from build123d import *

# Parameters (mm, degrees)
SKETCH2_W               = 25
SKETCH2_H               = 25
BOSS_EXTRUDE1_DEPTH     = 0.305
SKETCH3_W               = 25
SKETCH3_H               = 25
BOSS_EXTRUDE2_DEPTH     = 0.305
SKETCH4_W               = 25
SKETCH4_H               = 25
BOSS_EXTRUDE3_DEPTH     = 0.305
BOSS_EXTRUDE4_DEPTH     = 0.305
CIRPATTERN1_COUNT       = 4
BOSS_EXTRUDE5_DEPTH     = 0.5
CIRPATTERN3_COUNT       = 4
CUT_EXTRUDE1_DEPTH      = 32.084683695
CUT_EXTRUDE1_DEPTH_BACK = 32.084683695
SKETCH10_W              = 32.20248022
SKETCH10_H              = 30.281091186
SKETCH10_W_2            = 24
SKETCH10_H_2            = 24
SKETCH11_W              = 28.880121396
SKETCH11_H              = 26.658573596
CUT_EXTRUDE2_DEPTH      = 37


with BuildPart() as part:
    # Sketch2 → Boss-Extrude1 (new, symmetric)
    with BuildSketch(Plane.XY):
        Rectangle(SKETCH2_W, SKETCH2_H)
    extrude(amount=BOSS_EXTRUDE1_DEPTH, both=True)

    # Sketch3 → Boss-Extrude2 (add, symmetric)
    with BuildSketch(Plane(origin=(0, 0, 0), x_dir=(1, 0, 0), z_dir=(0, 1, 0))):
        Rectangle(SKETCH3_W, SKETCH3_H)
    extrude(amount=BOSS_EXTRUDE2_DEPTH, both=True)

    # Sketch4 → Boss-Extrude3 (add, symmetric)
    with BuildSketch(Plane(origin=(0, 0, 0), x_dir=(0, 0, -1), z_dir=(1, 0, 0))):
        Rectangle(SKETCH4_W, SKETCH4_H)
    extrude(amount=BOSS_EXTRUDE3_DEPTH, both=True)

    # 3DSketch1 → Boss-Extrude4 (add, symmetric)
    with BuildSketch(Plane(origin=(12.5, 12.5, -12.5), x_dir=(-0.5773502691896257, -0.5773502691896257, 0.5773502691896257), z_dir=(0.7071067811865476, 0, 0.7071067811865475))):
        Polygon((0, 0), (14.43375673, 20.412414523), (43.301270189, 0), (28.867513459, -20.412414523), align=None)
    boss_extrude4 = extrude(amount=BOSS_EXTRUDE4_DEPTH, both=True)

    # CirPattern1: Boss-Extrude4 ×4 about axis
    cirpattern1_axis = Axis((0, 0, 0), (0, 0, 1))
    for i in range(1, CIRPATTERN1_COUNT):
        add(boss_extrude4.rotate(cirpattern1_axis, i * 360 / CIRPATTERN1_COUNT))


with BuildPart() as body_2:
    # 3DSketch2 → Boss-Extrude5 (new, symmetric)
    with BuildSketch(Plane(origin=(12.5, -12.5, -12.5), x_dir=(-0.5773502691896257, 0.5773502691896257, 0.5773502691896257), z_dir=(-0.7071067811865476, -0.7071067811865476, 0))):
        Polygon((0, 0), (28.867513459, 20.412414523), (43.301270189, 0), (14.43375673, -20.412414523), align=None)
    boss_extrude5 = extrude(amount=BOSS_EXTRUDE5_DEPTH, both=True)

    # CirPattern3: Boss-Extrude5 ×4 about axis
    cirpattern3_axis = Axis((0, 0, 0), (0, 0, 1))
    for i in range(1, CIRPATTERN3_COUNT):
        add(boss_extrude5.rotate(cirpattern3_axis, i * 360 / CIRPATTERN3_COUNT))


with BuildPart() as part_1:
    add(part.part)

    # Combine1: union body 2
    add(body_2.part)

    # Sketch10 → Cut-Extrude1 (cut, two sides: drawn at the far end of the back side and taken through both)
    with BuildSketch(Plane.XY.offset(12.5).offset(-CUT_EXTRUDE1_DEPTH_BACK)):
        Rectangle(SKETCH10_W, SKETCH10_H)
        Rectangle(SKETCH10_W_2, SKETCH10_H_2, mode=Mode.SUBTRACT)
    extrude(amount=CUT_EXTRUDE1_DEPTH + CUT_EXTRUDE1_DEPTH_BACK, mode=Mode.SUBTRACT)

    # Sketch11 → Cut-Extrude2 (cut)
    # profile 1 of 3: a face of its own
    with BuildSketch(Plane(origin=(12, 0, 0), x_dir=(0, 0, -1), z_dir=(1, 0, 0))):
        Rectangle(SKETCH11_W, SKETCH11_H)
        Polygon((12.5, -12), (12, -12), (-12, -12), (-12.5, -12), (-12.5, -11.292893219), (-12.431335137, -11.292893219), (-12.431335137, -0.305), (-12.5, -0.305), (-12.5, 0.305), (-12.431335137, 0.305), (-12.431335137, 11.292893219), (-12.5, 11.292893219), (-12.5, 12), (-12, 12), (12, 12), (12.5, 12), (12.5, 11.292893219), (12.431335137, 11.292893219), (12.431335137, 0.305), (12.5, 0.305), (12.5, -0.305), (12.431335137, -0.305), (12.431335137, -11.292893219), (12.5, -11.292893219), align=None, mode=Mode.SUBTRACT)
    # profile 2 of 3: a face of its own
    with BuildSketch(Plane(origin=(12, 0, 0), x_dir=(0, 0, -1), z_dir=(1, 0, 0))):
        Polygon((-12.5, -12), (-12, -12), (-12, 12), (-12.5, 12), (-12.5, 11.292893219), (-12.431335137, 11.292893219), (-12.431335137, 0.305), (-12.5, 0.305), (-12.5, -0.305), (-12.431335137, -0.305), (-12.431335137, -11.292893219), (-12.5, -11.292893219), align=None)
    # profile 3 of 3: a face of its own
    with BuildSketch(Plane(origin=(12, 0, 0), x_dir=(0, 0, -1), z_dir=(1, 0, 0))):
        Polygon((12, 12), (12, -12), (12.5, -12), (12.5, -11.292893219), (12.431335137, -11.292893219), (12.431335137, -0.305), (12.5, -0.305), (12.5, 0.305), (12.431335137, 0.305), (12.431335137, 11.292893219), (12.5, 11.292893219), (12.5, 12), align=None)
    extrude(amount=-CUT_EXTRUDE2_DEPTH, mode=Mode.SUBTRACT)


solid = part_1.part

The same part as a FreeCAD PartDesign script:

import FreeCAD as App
import Part
import Sketcher
Q = App.Units.Quantity


def add_polygon(sketch, points):
    """Adds a closed chain of lines whose ends are joined by coincident constraints."""
    first, n = sketch.GeometryCount, len(points)
    for a, b in zip(points, points[1:] + points[:1]):
        sketch.addGeometry(Part.LineSegment(App.Vector(*a, 0), App.Vector(*b, 0)), False)
    for i in range(n):
        sketch.addConstraint(Sketcher.Constraint("Coincident", first + i, 2, first + (i + 1) % n, 1))

doc = App.newDocument("Part")
body = doc.addObject("PartDesign::Body", "Body")

# Sketch on XY plane
sketch1 = body.newObject("Sketcher::SketchObject", "Sketch")
sketch1.AttachmentSupport = (doc.getObject("XY_Plane"), [""])
sketch1.MapMode = "FlatFace"
add_polygon(sketch1, [(-12.5, 12.5), (-12.5, -12.5), (12.5, -12.5), (12.5, 12.5)])  # lines 0-3
sketch1.addConstraint([
    Sketcher.Constraint("Vertical", 0),
    Sketcher.Constraint("Horizontal", 1),
    Sketcher.Constraint("Vertical", 2),
    Sketcher.Constraint("Horizontal", 3),
    Sketcher.Constraint("Symmetric", 0, 2, 2, 2, -1, 1),
    Sketcher.Constraint("Equal", 3, 0),
    Sketcher.Constraint("DistanceX", 1, 1, 1, 2, Q("25 mm")),
])
pad1 = body.newObject("PartDesign::Pad", "Pad")
pad1.Profile = sketch1
pad1.Length = 0.61
pad1.Midplane = True

# Sketch on XZ plane
sketch2 = body.newObject("Sketcher::SketchObject", "Sketch001")
sketch2.AttachmentSupport = (doc.getObject("XZ_Plane"), [""])
sketch2.MapMode = "FlatFace"
add_polygon(sketch2, [(-12.5, -12.5), (-12.5, 12.5), (12.5, 12.5), (12.5, -12.5)])  # lines 0-3
sketch2.addConstraint([
    Sketcher.Constraint("Vertical", 0),
    Sketcher.Constraint("Horizontal", 1),
    Sketcher.Constraint("Vertical", 2),
    Sketcher.Constraint("Horizontal", 3),
    Sketcher.Constraint("Symmetric", 0, 2, 2, 2, -1, 1),
    Sketcher.Constraint("Equal", 3, 0),
    Sketcher.Constraint("DistanceX", 1, 1, 1, 2, Q("25 mm")),
])
pad2 = body.newObject("PartDesign::Pad", "Pad001")
pad2.Profile = sketch2
pad2.Length = 0.61
pad2.Midplane = True

# Sketch on YZ plane
sketch3 = body.newObject("Sketcher::SketchObject", "Sketch002")
sketch3.AttachmentSupport = (doc.getObject("YZ_Plane"), [""])
sketch3.MapMode = "FlatFace"
add_polygon(sketch3, [(12.5, 12.5), (-12.5, 12.5), (-12.5, -12.5), (12.5, -12.5)])  # lines 0-3
sketch3.addConstraint([
    Sketcher.Constraint("Horizontal", 0),
    Sketcher.Constraint("Vertical", 1),
    Sketcher.Constraint("Horizontal", 2),
    Sketcher.Constraint("Vertical", 3),
    Sketcher.Constraint("Symmetric", 0, 2, 2, 2, -1, 1),
    Sketcher.Constraint("Equal", 2, 1),
    Sketcher.Constraint("DistanceX", 0, 2, 0, 1, Q("25 mm")),
])
pad3 = body.newObject("PartDesign::Pad", "Pad002")
pad3.Profile = sketch3
pad3.Length = 0.61
pad3.Midplane = True

# Sketch on an angled plane
sketch4 = body.newObject("Sketcher::SketchObject", "Sketch003")
sketch4.Placement = App.Placement(App.Vector(12.5, 12.5, -12.5), App.Rotation(App.Vector(-0.577350269, -0.577350269, 0.577350269), App.Vector(0.40824829, -0.81649658, -0.40824829), App.Vector(0.707106781, 0, 0.707106781), "ZXY"))
add_polygon(sketch4, [(14.433757, 20.412414), (0, 0), (28.867513, -20.412414), (43.30127, 0)])  # lines 0-3
sketch4.addConstraint([
    Sketcher.Constraint("Coincident", 0, 2, -1, 1),
    Sketcher.Constraint("PointOnObject", 2, 2, -1),
    Sketcher.Constraint("Perpendicular", 0, 1),
    Sketcher.Constraint("Perpendicular", 1, 2),
    Sketcher.Constraint("Perpendicular", 2, 3),
    Sketcher.Constraint("Distance", 0, Q("25 mm")),
    Sketcher.Constraint("Distance", 1, Q("35.355339 mm")),
])
pad4 = body.newObject("PartDesign::Pad", "Pad003")
pad4.Profile = sketch4
pad4.Length = 0.61
pad4.Midplane = True
doc.recompute()

polarpattern = body.newObject("PartDesign::PolarPattern", "PolarPattern")
polarpattern.Originals = [pad4]
polarpattern.Axis = (doc.getObject("Z_Axis"), [""])
polarpattern.Angle = 360
polarpattern.Occurrences = 4
body.Tip = polarpattern
body2 = doc.addObject("PartDesign::Body", "Body001")

# Sketch on an angled plane
sketch5 = body2.newObject("Sketcher::SketchObject", "Sketch004")
sketch5.Placement = App.Placement(App.Vector(12.5, -12.5, -12.5), App.Rotation(App.Vector(-0.577350269, 0.577350269, 0.577350269), App.Vector(-0.40824829, 0.40824829, -0.81649658), App.Vector(-0.707106781, -0.707106781, 0), "ZXY"))
add_polygon(sketch5, [(28.867513, 20.412414), (0, 0), (14.433757, -20.412414), (43.30127, 0)])  # lines 0-3
sketch5.addConstraint([
    Sketcher.Constraint("Coincident", 0, 2, -1, 1),
    Sketcher.Constraint("PointOnObject", 2, 2, -1),
    Sketcher.Constraint("Perpendicular", 0, 1),
    Sketcher.Constraint("Perpendicular", 1, 2),
    Sketcher.Constraint("Perpendicular", 2, 3),
    Sketcher.Constraint("Distance", 1, Q("25 mm")),
    Sketcher.Constraint("Distance", 0, Q("35.355339 mm")),
])
pad5 = body2.newObject("PartDesign::Pad", "Pad004")
pad5.Profile = sketch5
pad5.Length = 1
pad5.Midplane = True
doc.recompute()

polarpattern2 = body2.newObject("PartDesign::PolarPattern", "PolarPattern001")
polarpattern2.Originals = [pad5]
polarpattern2.Axis = (doc.getObject("Z_Axis001"), [""])
polarpattern2.Angle = 360
polarpattern2.Occurrences = 4
body2.Tip = polarpattern2
doc.recompute()

boolean = body.newObject("PartDesign::Boolean", "Boolean")
boolean.Type = "Fuse"
boolean.addObjects([body2])

# Sketch on XY plane
sketch6 = body.newObject("Sketcher::SketchObject", "Sketch005")
sketch6.AttachmentSupport = (doc.getObject("XY_Plane"), [""])
sketch6.MapMode = "FlatFace"
sketch6.AttachmentOffset = App.Placement(App.Vector(0, 0, 12.5), App.Rotation())
add_polygon(sketch6, [(-16.10124, 15.140546), (-16.10124, -15.140546), (16.10124, -15.140546), (16.10124, 15.140546)])  # lines 0-3
add_polygon(sketch6, [(12, -12), (-12, -12), (-12, 12), (12, 12)])  # lines 4-7
sketch6.addConstraint([
    Sketcher.Constraint("Vertical", 0),
    Sketcher.Constraint("Horizontal", 1),
    Sketcher.Constraint("Vertical", 2),
    Sketcher.Constraint("Horizontal", 3),
    Sketcher.Constraint("Horizontal", 4),
    Sketcher.Constraint("Vertical", 5),
    Sketcher.Constraint("Horizontal", 6),
    Sketcher.Constraint("Vertical", 7),
    Sketcher.Constraint("Symmetric", 0, 2, 2, 2, -1, 1),
    Sketcher.Constraint("Symmetric", 4, 2, 6, 2, -1, 1),
    Sketcher.Constraint("Equal", 6, 5),
    Sketcher.Constraint("DistanceX", 4, 2, 4, 1, Q("24 mm")),
    Sketcher.Constraint("DistanceX", 1, 1, 1, 2, Q("32.20248 mm")),
    Sketcher.Constraint("DistanceY", 0, 2, 0, 1, Q("30.281091 mm")),
])
pocket1 = body.newObject("PartDesign::Pocket", "Pocket")
pocket1.Profile = sketch6
pocket1.Type = "ThroughAll"
pocket1.Midplane = True

# Sketch on YZ plane
sketch7 = body.newObject("Sketcher::SketchObject", "Sketch006")
sketch7.AttachmentSupport = (doc.getObject("YZ_Plane"), [""])
sketch7.MapMode = "FlatFace"
sketch7.AttachmentOffset = App.Placement(App.Vector(0, 0, 12), App.Rotation())
add_polygon(sketch7, [(13.329287, 14.440061), (-13.329287, 14.440061), (-13.329287, -14.440061), (13.329287, -14.440061)])  # lines 0-3
add_polygon(sketch7, [(-12, -12), (-12, 12), (12, 12), (12, -12)])  # lines 4-7
sketch7.addConstraint([
    Sketcher.Constraint("Horizontal", 0),
    Sketcher.Constraint("Vertical", 1),
    Sketcher.Constraint("Horizontal", 2),
    Sketcher.Constraint("Vertical", 3),
    Sketcher.Constraint("Vertical", 4),
    Sketcher.Constraint("Horizontal", 5),
    Sketcher.Constraint("Vertical", 6),
    Sketcher.Constraint("Horizontal", 7),
    Sketcher.Constraint("Symmetric", 0, 2, 2, 2, -1, 1),
    Sketcher.Constraint("Symmetric", 4, 2, 6, 2, -1, 1),
    Sketcher.Constraint("Equal", 7, 4),
    Sketcher.Constraint("DistanceX", 5, 1, 5, 2, Q("24 mm")),
    Sketcher.Constraint("DistanceY", 1, 2, 1, 1, Q("28.880121 mm")),
    Sketcher.Constraint("DistanceX", 0, 2, 0, 1, Q("26.658574 mm")),
])
pocket2 = body.newObject("PartDesign::Pocket", "Pocket001")
pocket2.Profile = sketch7
pocket2.Length = 37

doc.recompute()
